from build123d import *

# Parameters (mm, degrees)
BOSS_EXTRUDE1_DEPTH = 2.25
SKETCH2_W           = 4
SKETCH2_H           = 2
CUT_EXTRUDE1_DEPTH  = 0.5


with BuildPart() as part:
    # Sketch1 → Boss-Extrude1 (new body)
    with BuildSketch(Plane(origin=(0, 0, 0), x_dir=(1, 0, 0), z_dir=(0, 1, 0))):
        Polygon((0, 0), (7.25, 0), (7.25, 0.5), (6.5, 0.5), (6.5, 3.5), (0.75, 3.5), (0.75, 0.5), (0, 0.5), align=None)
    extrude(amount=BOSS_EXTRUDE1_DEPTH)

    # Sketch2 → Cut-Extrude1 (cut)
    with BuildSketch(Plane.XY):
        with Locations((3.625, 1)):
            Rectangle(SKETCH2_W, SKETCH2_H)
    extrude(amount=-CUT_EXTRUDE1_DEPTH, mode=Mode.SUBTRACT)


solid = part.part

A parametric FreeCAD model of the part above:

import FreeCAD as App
import Part
import Sketcher

doc = App.newDocument("Part")
body = doc.addObject("PartDesign::Body", "Body")

# Sketch on XZ plane
sketch1 = doc.addObject("Sketcher::SketchObject", "Sketch")
body.addObject(sketch1)
sketch1.AttachmentSupport = (doc.XZ_Plane, [""])
sketch1.MapMode = "FlatFace"
sketch1.addGeometry(Part.LineSegment(App.Vector(0, 0, 0), App.Vector(7.2, 0, 0)), False)
sketch1.addGeometry(Part.LineSegment(App.Vector(7.2, 0, 0), App.Vector(7.2, -0.5, 0)), False)
sketch1.addGeometry(Part.LineSegment(App.Vector(7.2, -0.5, 0), App.Vector(6.5, -0.5, 0)), False)
sketch1.addGeometry(Part.LineSegment(App.Vector(6.5, -0.5, 0), App.Vector(6.5, -3.5, 0)), False)
sketch1.addGeometry(Part.LineSegment(App.Vector(6.5, -3.5, 0), App.Vector(0.8, -3.5, 0)), False)
sketch1.addGeometry(Part.LineSegment(App.Vector(0.8, -3.5, 0), App.Vector(0.8, -0.5, 0)), False)
sketch1.addGeometry(Part.LineSegment(App.Vector(0.8, -0.5, 0), App.Vector(0, -0.5, 0)), False)
sketch1.addGeometry(Part.LineSegment(App.Vector(0, -0.5, 0), App.Vector(0, 0, 0)), False)
sketch1.addConstraint(Sketcher.Constraint("Coincident", 0, 2, 1, 1))
sketch1.addConstraint(Sketcher.Constraint("Coincident", 1, 2, 2, 1))
sketch1.addConstraint(Sketcher.Constraint("Coincident", 2, 2, 3, 1))
sketch1.addConstraint(Sketcher.Constraint("Coincident", 3, 2, 4, 1))
sketch1.addConstraint(Sketcher.Constraint("Coincident", 4, 2, 5, 1))
sketch1.addConstraint(Sketcher.Constraint("Coincident", 5, 2, 6, 1))
sketch1.addConstraint(Sketcher.Constraint("Coincident", 6, 2, 7, 1))
sketch1.addConstraint(Sketcher.Constraint("Coincident", 7, 2, 0, 1))
sketch1.addConstraint(Sketcher.Constraint("Horizontal", 0))
sketch1.addConstraint(Sketcher.Constraint("Vertical", 1))
sketch1.addConstraint(Sketcher.Constraint("Horizontal", 2))
sketch1.addConstraint(Sketcher.Constraint("Vertical", 3))
sketch1.addConstraint(Sketcher.Constraint("Horizontal", 4))
sketch1.addConstraint(Sketcher.Constraint("Vertical", 5))
sketch1.addConstraint(Sketcher.Constraint("Horizontal", 6))
sketch1.addConstraint(Sketcher.Constraint("Vertical", 7))
sketch1.addConstraint(Sketcher.Constraint("Coincident", 7, 2, -1, 1))
sketch1.addConstraint(Sketcher.Constraint("Horizontal", 2, 2, 5, 2))
sketch1.addConstraint(Sketcher.Constraint("Equal", 2, 6))
sketch1.addConstraint(Sketcher.Constraint("DistanceY", 3, 2, 3, 1, 3.0))
sketch1.addConstraint(Sketcher.Constraint("DistanceY", 1, 2, 1, 1, 0.5))
sketch1.addConstraint(Sketcher.Constraint("DistanceX", 0, 1, 0, 2, 7.25))
sketch1.addConstraint(Sketcher.Constraint("DistanceX", 2, 2, 2, 1, 0.75))
pad1 = doc.addObject("PartDesign::Pad", "Pad")
body.addObject(pad1)
pad1.Profile = sketch1
pad1.Length = 2.25
pad1.Reversed = True

# Sketch on XY plane
sketch2 = doc.addObject("Sketcher::SketchObject", "Sketch001")
body.addObject(sketch2)
sketch2.AttachmentSupport = (doc.XY_Plane, [""])
sketch2.MapMode = "FlatFace"
sketch2.addGeometry(Part.LineSegment(App.Vector(1.6, 2, 0), App.Vector(1.6, 0, 0)), False)
sketch2.addGeometry(Part.LineSegment(App.Vector(1.6, 0, 0), App.Vector(5.6, 0, 0)), False)
sketch2.addGeometry(Part.LineSegment(App.Vector(5.6, 0, 0), App.Vector(5.6, 2, 0)), False)
sketch2.addGeometry(Part.LineSegment(App.Vector(5.6, 2, 0), App.Vector(1.6, 2, 0)), False)
sketch2.addConstraint(Sketcher.Constraint("Coincident", 0, 2, 1, 1))
sketch2.addConstraint(Sketcher.Constraint("Coincident", 1, 2, 2, 1))
sketch2.addConstraint(Sketcher.Constraint("Coincident", 2, 2, 3, 1))
sketch2.addConstraint(Sketcher.Constraint("Coincident", 3, 2, 0, 1))
sketch2.addConstraint(Sketcher.Constraint("Vertical", 0))
sketch2.addConstraint(Sketcher.Constraint("Horizontal", 1))
sketch2.addConstraint(Sketcher.Constraint("Vertical", 2))
sketch2.addConstraint(Sketcher.Constraint("Horizontal", 3))
sketch2.addConstraint(Sketcher.Constraint("PointOnObject", 0, 2, -1))
sketch2.addConstraint(Sketcher.Constraint("DistanceX", 1, 1, 1, 2, 4.0))
sketch2.addConstraint(Sketcher.Constraint("DistanceY", 0, 2, 0, 1, 2.0))
sketch2.addConstraint(Sketcher.Constraint("DistanceX", -1, 1, 0, 2, 1.625))
pocket1 = doc.addObject("PartDesign::Pocket", "Pocket")
body.addObject(pocket1)
pocket1.Profile = sketch2
pocket1.Length = 0.5

doc.recompute()
